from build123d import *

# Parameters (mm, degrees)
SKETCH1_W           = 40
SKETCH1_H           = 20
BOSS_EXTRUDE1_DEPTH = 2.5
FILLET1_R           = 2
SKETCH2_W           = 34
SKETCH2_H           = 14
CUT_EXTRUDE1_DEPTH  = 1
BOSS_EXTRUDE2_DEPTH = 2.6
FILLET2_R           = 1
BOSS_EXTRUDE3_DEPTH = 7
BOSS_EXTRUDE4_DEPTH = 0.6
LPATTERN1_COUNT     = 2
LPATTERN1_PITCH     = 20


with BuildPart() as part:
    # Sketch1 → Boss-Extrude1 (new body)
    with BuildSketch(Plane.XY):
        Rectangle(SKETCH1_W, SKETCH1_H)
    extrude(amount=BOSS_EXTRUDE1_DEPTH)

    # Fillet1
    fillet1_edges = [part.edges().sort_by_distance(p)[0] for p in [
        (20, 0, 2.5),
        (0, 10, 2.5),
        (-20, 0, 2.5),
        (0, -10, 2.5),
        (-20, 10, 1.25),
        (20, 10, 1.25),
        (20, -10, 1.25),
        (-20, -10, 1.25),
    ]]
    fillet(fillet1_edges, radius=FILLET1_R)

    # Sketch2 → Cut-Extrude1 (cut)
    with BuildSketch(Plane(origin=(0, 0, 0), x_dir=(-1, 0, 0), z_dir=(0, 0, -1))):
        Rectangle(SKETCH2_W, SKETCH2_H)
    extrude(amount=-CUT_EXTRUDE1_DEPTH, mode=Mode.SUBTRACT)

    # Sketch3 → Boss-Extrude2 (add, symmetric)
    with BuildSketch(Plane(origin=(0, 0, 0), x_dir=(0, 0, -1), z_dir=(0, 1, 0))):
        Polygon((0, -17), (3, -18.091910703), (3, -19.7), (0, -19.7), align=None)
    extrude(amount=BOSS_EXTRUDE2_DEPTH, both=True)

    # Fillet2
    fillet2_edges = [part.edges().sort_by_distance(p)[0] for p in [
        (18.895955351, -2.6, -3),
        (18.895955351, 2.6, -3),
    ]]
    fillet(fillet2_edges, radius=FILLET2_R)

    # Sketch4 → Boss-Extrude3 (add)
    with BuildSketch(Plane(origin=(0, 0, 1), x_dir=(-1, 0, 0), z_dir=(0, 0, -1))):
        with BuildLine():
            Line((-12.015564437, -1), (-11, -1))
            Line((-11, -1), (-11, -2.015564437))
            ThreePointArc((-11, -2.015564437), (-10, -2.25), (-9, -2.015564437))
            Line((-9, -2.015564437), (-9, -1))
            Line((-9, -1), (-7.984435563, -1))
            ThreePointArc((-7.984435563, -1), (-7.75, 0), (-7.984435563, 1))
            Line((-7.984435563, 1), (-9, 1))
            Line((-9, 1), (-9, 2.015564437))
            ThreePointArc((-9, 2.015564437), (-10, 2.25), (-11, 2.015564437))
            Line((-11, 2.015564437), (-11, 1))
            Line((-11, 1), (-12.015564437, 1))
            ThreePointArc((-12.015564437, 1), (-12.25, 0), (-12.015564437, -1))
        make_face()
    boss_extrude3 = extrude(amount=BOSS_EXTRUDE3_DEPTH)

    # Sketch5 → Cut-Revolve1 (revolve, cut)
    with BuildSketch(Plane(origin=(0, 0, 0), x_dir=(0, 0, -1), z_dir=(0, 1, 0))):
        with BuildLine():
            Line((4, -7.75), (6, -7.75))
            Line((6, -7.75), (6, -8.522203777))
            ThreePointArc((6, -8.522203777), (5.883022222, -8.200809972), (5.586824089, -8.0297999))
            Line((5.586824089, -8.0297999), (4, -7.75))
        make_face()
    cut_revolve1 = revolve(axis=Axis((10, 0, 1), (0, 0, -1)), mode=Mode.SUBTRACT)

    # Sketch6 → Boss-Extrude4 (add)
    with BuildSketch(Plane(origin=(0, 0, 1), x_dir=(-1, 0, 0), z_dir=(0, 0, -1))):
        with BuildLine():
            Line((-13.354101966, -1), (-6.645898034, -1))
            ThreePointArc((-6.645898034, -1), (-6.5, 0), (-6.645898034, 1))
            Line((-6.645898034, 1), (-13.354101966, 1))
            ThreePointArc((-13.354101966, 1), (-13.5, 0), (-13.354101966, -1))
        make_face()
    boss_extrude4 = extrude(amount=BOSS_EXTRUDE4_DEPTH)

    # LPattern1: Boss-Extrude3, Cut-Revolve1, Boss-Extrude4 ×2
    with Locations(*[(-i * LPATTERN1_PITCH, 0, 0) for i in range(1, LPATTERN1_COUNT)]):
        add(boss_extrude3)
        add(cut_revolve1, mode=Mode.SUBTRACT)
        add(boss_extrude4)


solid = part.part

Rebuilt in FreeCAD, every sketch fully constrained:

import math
import FreeCAD as App
import Part
import Sketcher

V = App.Vector
Q = App.Units.Quantity


def edges_at(feature, points):
    """Names of the edges that pass closest to the given points."""
    edges = feature.Shape.Edges
    near = lambda p: min(range(len(edges)), key=lambda i: edges[i].distToShape(Part.Vertex(*p))[0])
    return sorted({f"Edge{near(p) + 1}" for p in points})


def add_polygon(sketch, points):
    """Adds a closed chain of lines whose ends are joined by coincident constraints."""
    first, n = sketch.GeometryCount, len(points)
    for a, b in zip(points, points[1:] + points[:1]):
        sketch.addGeometry(Part.LineSegment(App.Vector(*a, 0), App.Vector(*b, 0)), False)
    for i in range(n):
        sketch.addConstraint(Sketcher.Constraint("Coincident", first + i, 2, first + (i + 1) % n, 1))

doc = App.newDocument("Part")
body = doc.addObject("PartDesign::Body", "Body")

sketch1 = body.newObject("Sketcher::SketchObject", "Sketch")
sketch1.AttachmentSupport = (doc.getObject("XY_Plane"), [""])
sketch1.MapMode = "FlatFace"
add_polygon(sketch1, [(-20, 10), (-20, -10), (20, -10), (20, 10)])
sketch1.addConstraint(Sketcher.Constraint("Vertical", 0))
sketch1.addConstraint(Sketcher.Constraint("Horizontal", 1))
sketch1.addConstraint(Sketcher.Constraint("Vertical", 2))
sketch1.addConstraint(Sketcher.Constraint("Horizontal", 3))
sketch1.addConstraint(Sketcher.Constraint("Symmetric", 0, 2, 2, 2, -1, 1))
sketch1.addConstraint(Sketcher.Constraint("DistanceX", 1, 1, 1, 2, Q("40 mm")))
sketch1.addConstraint(Sketcher.Constraint("DistanceY", 0, 2, 0, 1, Q("20 mm")))
pad1 = body.newObject("PartDesign::Pad", "Pad")
pad1.Profile = sketch1
pad1.Length = 2.5
doc.recompute()

fillet = body.newObject("PartDesign::Fillet", "Fillet")
fillet.Base = (pad1, edges_at(pad1, [
    (20, 0, 2.5),
    (0, 10, 2.5),
    (-20, 0, 2.5),
    (0, -10, 2.5),
    (-20, 10, 1.25),
    (20, 10, 1.25),
    (20, -10, 1.25),
    (-20, -10, 1.25),
]))
fillet.Radius = 2

sketch2 = body.newObject("Sketcher::SketchObject", "Sketch001")
sketch2.AttachmentSupport = (doc.getObject("XY_Plane"), [""])
sketch2.MapMode = "FlatFace"
add_polygon(sketch2, [(17, 7), (17, -7), (-17, -7), (-17, 7)])
sketch2.addConstraint(Sketcher.Constraint("Vertical", 0))
sketch2.addConstraint(Sketcher.Constraint("Horizontal", 1))
sketch2.addConstraint(Sketcher.Constraint("Vertical", 2))
sketch2.addConstraint(Sketcher.Constraint("Horizontal", 3))
sketch2.addConstraint(Sketcher.Constraint("Symmetric", 0, 2, 2, 2, -1, 1))
sketch2.addConstraint(Sketcher.Constraint("DistanceX", 1, 2, 1, 1, Q("34 mm")))
sketch2.addConstraint(Sketcher.Constraint("DistanceY", 0, 2, 0, 1, Q("14 mm")))
pocket1 = body.newObject("PartDesign::Pocket", "Pocket")
pocket1.Profile = sketch2
pocket1.Length = 1
pocket1.Reversed = True

sketch3 = body.newObject("Sketcher::SketchObject", "Sketch002")
sketch3.AttachmentSupport = (doc.getObject("XZ_Plane"), [""])
sketch3.MapMode = "FlatFace"
add_polygon(sketch3, [(18.1, -3), (17, 0), (19.7, 0), (19.7, -3)])
sketch3.addConstraint(Sketcher.Constraint("Horizontal", 1))
sketch3.addConstraint(Sketcher.Constraint("Vertical", 2))
sketch3.addConstraint(Sketcher.Constraint("Horizontal", 3))
sketch3.addConstraint(Sketcher.Constraint("PointOnObject", 0, 2, -1))
sketch3.addConstraint(Sketcher.Constraint("DistanceY", 2, 2, 2, 1, Q("3 mm")))
sketch3.addConstraint(Sketcher.Constraint("Angle", 0, Q("110 deg")))
sketch3.addConstraint(Sketcher.Constraint("DistanceX", 1, 1, 1, 2, Q("2.7 mm")))
sketch3.addConstraint(Sketcher.Constraint("DistanceX", -1, 1, 0, 2, Q("17 mm")))
pad2 = body.newObject("PartDesign::Pad", "Pad001")
pad2.Profile = sketch3
pad2.Length = 5.2
pad2.Midplane = True
doc.recompute()

fillet2 = body.newObject("PartDesign::Fillet", "Fillet001")
fillet2.Base = (pad2, edges_at(pad2, [(18.896, -2.6, -3), (18.896, 2.6, -3)]))
fillet2.Radius = 1

sketch4 = body.newObject("Sketcher::SketchObject", "Sketch003")
sketch4.AttachmentSupport = (doc.getObject("XY_Plane"), [""])
sketch4.MapMode = "FlatFace"
sketch4.AttachmentOffset = App.Placement(V(0, 0, 1), App.Rotation())
sketch4.addGeometry(Part.LineSegment(V(12, -1, 0), V(11, -1, 0)), False)
sketch4.addGeometry(Part.LineSegment(V(11, -1, 0), V(11, -2, 0)), False)
sketch4.addGeometry(Part.ArcOfCircle(Part.Circle(V(10, 0, 0), V(0, 0, 1), 2.2), math.radians(-116), math.radians(-64)), False)
sketch4.addGeometry(Part.LineSegment(V(9, -2, 0), V(9, -1, 0)), False)
sketch4.addGeometry(Part.LineSegment(V(9, -1, 0), V(8, -1, 0)), False)
sketch4.addGeometry(Part.ArcOfCircle(Part.Circle(V(10, 0, 0), V(0, 0, 1), 2.2), math.radians(154), math.radians(206)), False)
sketch4.addGeometry(Part.LineSegment(V(8, 1, 0), V(9, 1, 0)), False)
sketch4.addGeometry(Part.LineSegment(V(9, 1, 0), V(9, 2, 0)), False)
sketch4.addGeometry(Part.ArcOfCircle(Part.Circle(V(10, 0, 0), V(0, 0, 1), 2.2), math.radians(64), math.radians(116)), False)
sketch4.addGeometry(Part.LineSegment(V(11, 2, 0), V(11, 1, 0)), False)
sketch4.addGeometry(Part.LineSegment(V(11, 1, 0), V(12, 1, 0)), False)
sketch4.addGeometry(Part.ArcOfCircle(Part.Circle(V(10, 0, 0), V(0, 0, 1), 2.2), math.radians(-26), math.radians(26)), False)
sketch4.addConstraint(Sketcher.Constraint("Coincident", 0, 2, 1, 1))
sketch4.addConstraint(Sketcher.Constraint("Coincident", 1, 2, 2, 2))
sketch4.addConstraint(Sketcher.Constraint("Coincident", 2, 1, 3, 1))
sketch4.addConstraint(Sketcher.Constraint("Coincident", 3, 2, 4, 1))
sketch4.addConstraint(Sketcher.Constraint("Coincident", 4, 2, 5, 2))
sketch4.addConstraint(Sketcher.Constraint("Coincident", 5, 1, 6, 1))
sketch4.addConstraint(Sketcher.Constraint("Coincident", 6, 2, 7, 1))
sketch4.addConstraint(Sketcher.Constraint("Coincident", 7, 2, 8, 2))
sketch4.addConstraint(Sketcher.Constraint("Coincident", 8, 1, 9, 1))
sketch4.addConstraint(Sketcher.Constraint("Coincident", 9, 2, 10, 1))
sketch4.addConstraint(Sketcher.Constraint("Coincident", 10, 2, 11, 2))
sketch4.addConstraint(Sketcher.Constraint("Coincident", 11, 1, 0, 1))
sketch4.addConstraint(Sketcher.Constraint("Horizontal", 0))
sketch4.addConstraint(Sketcher.Constraint("Vertical", 1))
sketch4.addConstraint(Sketcher.Constraint("Vertical", 3))
sketch4.addConstraint(Sketcher.Constraint("Horizontal", 4))
sketch4.addConstraint(Sketcher.Constraint("Horizontal", 6))
sketch4.addConstraint(Sketcher.Constraint("Vertical", 7))
sketch4.addConstraint(Sketcher.Constraint("Vertical", 9))
sketch4.addConstraint(Sketcher.Constraint("Horizontal", 10))
sketch4.addConstraint(Sketcher.Constraint("Coincident", 5, 3, 2, 3))
sketch4.addConstraint(Sketcher.Constraint("Coincident", 8, 3, 2, 3))
sketch4.addConstraint(Sketcher.Constraint("Coincident", 11, 3, 2, 3))
sketch4.addConstraint(Sketcher.Constraint("Equal", 2, 5))
sketch4.addConstraint(Sketcher.Constraint("Equal", 5, 8))
sketch4.addConstraint(Sketcher.Constraint("Equal", 8, 11))
sketch4.addConstraint(Sketcher.Constraint("Symmetric", 4, 2, 5, 1, -1))
sketch4.addConstraint(Sketcher.Constraint("Symmetric", 0, 2, 9, 2, -1))
sketch4.addConstraint(Sketcher.Constraint("Horizontal", 1, 2, 2, 1))
sketch4.addConstraint(Sketcher.Constraint("Horizontal", 0, 2, 3, 2))
sketch4.addConstraint(Sketcher.Constraint("Horizontal", 7, 2, 8, 1))
sketch4.addConstraint(Sketcher.Constraint("Equal", 10, 1))
sketch4.addConstraint(Sketcher.Constraint("Radius", 2, Q("2.25 mm")))
sketch4.addConstraint(Sketcher.Constraint("DistanceX", -1, 1, 2, 3, Q("10 mm")))
sketch4.addConstraint(Sketcher.Constraint("DistanceX", -1, 1, 0, 2, Q("11 mm")))
pad3 = body.newObject("PartDesign::Pad", "Pad002")
pad3.Profile = sketch4
pad3.Length = 7
pad3.Reversed = True

sketch5 = body.newObject("Sketcher::SketchObject", "Sketch004")
sketch5.AttachmentSupport = (doc.getObject("XZ_Plane"), [""])
sketch5.MapMode = "FlatFace"
sketch5.addGeometry(Part.LineSegment(V(7.8, -6, 0), V(7.8, -4, 0)), False)
sketch5.addGeometry(Part.LineSegment(V(7.8, -4, 0), V(8, -5.6, 0)), False)
sketch5.addGeometry(Part.ArcOfCircle(Part.Circle(V(8.5, -5.5, 0), V(0, 0, 1), 0.5), math.radians(-170), math.radians(-90)), False)
sketch5.addGeometry(Part.LineSegment(V(8.5, -6, 0), V(7.8, -6, 0)), False)
sketch5.addGeometry(Part.LineSegment(V(10, -4, 0), V(10, -6, 0)), True)
sketch5.addConstraint(Sketcher.Constraint("Coincident", 0, 2, 1, 1))
sketch5.addConstraint(Sketcher.Constraint("Tangent", 1, 2, 2, 1))
sketch5.addConstraint(Sketcher.Constraint("Tangent", 2, 2, 3, 1))
sketch5.addConstraint(Sketcher.Constraint("Coincident", 3, 2, 0, 1))
sketch5.addConstraint(Sketcher.Constraint("Vertical", 0))
sketch5.addConstraint(Sketcher.Constraint("Horizontal", 3))
sketch5.addConstraint(Sketcher.Constraint("Vertical", 4))
sketch5.addConstraint(Sketcher.Constraint("Horizontal", 0, 2, 4, 1))
sketch5.addConstraint(Sketcher.Constraint("Horizontal", 3, 2, 4, 2))
sketch5.addConstraint(Sketcher.Constraint("Radius", 2, Q("0.5 mm")))
sketch5.addConstraint(Sketcher.Constraint("DistanceY", 0, 1, 0, 2, Q("2 mm")))
sketch5.addConstraint(Sketcher.Constraint("Angle", 1, Q("-80 deg")))
sketch5.addConstraint(Sketcher.Constraint("DistanceY", 0, 2, -1, 1, Q("4 mm")))
sketch5.addConstraint(Sketcher.Constraint("DistanceX", -1, 1, 4, 1, Q("10 mm")))
sketch5.addConstraint(Sketcher.Constraint("DistanceX", -1, 1, 0, 2, Q("7.75 mm")))
groove = body.newObject("PartDesign::Groove", "Groove")
groove.Profile = sketch5
groove.ReferenceAxis = (sketch5, ["Axis0"])
groove.Angle = 360

sketch6 = body.newObject("Sketcher::SketchObject", "Sketch005")
sketch6.AttachmentSupport = (doc.getObject("XY_Plane"), [""])
sketch6.MapMode = "FlatFace"
sketch6.AttachmentOffset = App.Placement(V(0, 0, 1), App.Rotation())
sketch6.addGeometry(Part.LineSegment(V(13.4, -1, 0), V(6.6, -1, 0)), False)
sketch6.addGeometry(Part.ArcOfCircle(Part.Circle(V(10, 0, 0), V(0, 0, 1), 3.5), math.radians(163), math.radians(197)), False)
sketch6.addGeometry(Part.LineSegment(V(6.6, 1, 0), V(13.4, 1, 0)), False)
sketch6.addGeometry(Part.ArcOfCircle(Part.Circle(V(10, 0, 0), V(0, 0, 1), 3.5), math.radians(-17), math.radians(17)), False)
sketch6.addConstraint(Sketcher.Constraint("Coincident", 0, 2, 1, 2))
sketch6.addConstraint(Sketcher.Constraint("Coincident", 1, 1, 2, 1))
sketch6.addConstraint(Sketcher.Constraint("Coincident", 2, 2, 3, 2))
sketch6.addConstraint(Sketcher.Constraint("Coincident", 3, 1, 0, 1))
sketch6.addConstraint(Sketcher.Constraint("Horizontal", 0))
sketch6.addConstraint(Sketcher.Constraint("Horizontal", 2))
sketch6.addConstraint(Sketcher.Constraint("Coincident", 3, 3, 1, 3))
sketch6.addConstraint(Sketcher.Constraint("Equal", 1, 3))
sketch6.addConstraint(Sketcher.Constraint("Symmetric", 0, 2, 1, 1, -1))
sketch6.addConstraint(Sketcher.Constraint("Radius", 1, Q("3.5 mm")))
sketch6.addConstraint(Sketcher.Constraint("DistanceX", -1, 1, 1, 3, Q("10 mm")))
sketch6.addConstraint(Sketcher.Constraint("DistanceY", 0, 2, -1, 1, Q("1 mm")))
pad4 = body.newObject("PartDesign::Pad", "Pad003")
pad4.Profile = sketch6
pad4.Length = 0.6
pad4.Reversed = True
doc.recompute()

linearpattern = body.newObject("PartDesign::LinearPattern", "LinearPattern")
linearpattern.Originals = [pad3, groove, pad4]
linearpattern.Direction = (doc.getObject("X_Axis"), [""])
linearpattern.Mode = "offset"
linearpattern.Offset = 20
linearpattern.Occurrences = 2
linearpattern.Reversed = True
body.Tip = linearpattern

doc.recompute()
